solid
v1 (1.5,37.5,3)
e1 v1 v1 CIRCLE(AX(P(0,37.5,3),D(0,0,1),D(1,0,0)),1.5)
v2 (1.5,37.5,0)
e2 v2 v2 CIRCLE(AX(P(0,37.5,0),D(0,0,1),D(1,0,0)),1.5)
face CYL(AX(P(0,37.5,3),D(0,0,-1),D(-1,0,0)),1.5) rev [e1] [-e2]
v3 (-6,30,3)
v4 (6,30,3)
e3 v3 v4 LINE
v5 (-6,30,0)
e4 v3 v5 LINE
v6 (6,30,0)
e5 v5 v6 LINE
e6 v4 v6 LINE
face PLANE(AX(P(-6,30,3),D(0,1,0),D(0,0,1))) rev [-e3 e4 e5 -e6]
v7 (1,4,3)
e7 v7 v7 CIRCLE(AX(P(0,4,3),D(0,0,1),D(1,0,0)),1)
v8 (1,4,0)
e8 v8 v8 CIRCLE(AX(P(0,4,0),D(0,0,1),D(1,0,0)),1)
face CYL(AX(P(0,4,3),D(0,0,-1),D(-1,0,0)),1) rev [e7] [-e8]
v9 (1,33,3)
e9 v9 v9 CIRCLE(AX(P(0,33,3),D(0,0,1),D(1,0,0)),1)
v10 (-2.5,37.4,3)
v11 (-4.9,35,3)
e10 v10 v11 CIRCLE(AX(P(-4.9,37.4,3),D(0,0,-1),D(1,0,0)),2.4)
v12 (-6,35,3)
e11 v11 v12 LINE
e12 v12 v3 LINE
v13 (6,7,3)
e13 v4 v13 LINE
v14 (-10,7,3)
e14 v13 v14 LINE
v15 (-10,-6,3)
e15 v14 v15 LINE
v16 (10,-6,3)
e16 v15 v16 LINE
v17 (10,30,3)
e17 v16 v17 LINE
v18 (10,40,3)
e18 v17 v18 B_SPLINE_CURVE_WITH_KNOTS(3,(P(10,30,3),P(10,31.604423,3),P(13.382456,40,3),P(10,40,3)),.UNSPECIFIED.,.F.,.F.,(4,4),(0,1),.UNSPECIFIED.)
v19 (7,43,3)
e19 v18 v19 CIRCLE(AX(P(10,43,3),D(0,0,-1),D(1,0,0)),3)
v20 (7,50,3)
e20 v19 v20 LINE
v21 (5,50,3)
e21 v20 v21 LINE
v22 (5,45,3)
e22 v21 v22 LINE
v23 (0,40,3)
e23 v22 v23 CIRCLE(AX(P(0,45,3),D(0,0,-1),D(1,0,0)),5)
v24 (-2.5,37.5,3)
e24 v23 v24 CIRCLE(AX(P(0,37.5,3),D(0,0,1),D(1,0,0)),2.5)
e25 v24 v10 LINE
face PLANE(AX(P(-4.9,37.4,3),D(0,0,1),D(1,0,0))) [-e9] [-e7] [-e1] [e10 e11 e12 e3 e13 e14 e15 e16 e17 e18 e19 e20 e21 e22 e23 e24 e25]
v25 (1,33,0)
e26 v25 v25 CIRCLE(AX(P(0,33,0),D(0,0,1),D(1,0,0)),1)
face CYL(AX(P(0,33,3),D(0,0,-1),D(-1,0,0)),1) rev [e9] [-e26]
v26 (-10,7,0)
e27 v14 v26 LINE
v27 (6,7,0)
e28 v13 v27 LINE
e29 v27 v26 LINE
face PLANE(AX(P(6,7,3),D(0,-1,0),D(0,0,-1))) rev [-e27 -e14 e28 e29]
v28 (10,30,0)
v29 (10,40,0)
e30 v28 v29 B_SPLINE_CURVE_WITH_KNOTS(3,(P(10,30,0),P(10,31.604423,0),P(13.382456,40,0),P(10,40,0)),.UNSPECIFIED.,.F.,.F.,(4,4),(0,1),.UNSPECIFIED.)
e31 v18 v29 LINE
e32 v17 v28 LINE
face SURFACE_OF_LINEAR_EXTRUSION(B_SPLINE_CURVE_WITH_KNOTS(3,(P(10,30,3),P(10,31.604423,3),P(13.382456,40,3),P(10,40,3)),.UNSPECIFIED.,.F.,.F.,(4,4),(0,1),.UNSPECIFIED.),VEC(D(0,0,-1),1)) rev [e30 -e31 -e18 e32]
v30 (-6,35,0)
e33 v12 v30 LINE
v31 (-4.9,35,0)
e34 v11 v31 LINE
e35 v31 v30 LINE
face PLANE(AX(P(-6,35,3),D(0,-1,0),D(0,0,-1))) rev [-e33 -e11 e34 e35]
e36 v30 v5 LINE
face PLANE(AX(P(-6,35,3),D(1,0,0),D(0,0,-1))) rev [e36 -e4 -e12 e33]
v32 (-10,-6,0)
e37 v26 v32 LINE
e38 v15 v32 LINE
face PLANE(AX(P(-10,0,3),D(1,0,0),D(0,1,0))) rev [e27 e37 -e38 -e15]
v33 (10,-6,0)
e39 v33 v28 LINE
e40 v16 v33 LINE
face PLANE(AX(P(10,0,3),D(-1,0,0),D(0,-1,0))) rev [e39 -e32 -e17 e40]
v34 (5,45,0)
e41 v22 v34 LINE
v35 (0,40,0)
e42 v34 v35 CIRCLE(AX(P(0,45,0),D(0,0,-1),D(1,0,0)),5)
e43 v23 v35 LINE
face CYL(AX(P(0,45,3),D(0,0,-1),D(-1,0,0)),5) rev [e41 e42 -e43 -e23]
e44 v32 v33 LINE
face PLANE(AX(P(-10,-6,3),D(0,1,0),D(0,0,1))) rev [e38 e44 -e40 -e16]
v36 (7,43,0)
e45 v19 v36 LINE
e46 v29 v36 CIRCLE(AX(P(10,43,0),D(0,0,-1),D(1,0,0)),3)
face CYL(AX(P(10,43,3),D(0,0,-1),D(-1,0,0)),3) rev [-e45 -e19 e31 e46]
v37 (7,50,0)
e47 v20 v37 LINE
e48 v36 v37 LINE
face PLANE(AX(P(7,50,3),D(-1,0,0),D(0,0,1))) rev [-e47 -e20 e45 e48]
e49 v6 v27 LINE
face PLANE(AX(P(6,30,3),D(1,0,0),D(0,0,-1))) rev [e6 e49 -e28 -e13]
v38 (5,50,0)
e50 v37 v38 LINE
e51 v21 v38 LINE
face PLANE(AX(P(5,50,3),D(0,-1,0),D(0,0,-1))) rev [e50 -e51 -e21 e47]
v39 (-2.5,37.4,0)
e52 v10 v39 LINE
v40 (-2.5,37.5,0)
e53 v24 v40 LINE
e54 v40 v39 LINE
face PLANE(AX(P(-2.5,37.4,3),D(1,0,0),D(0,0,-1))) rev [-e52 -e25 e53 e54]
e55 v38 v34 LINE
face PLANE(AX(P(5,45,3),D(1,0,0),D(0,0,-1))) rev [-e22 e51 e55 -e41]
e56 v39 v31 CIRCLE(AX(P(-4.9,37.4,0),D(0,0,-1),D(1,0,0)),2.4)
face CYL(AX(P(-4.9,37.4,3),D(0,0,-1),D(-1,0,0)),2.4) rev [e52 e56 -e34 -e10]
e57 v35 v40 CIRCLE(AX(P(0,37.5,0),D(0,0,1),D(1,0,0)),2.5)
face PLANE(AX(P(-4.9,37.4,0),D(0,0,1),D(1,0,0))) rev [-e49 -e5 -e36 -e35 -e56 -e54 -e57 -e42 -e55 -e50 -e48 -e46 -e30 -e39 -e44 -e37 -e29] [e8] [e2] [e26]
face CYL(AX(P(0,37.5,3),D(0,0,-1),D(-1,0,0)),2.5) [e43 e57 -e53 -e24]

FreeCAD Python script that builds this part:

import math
import FreeCAD as App
import Part
import Sketcher

V = App.Vector

doc = App.newDocument("Part")
body = doc.addObject("PartDesign::Body", "Body")

# Sketch on XY plane
sketch1 = doc.addObject("Sketcher::SketchObject", "Sketch")
body.addObject(sketch1)
sketch1.AttachmentSupport = (doc.XY_Plane, [""])
sketch1.MapMode = "FlatFace"
sketch1.addGeometry([
    Part.BSplineCurve([V(10, 40, 0), V(13.382456, 40, 0), V(10, 31.604423, 0), V(10, 30, 0)], [4, 4], [0, 1], False, 3, [1, 1, 1, 1], False),  # 0
    Part.ArcOfCircle(Part.Circle(V(10, 43, 0), V(0, 0, 1), 3), math.radians(180), math.radians(270)),  # 1
    Part.LineSegment(V(7, 43, 0), V(7, 50, 0)),  # 2
    Part.LineSegment(V(7, 50, 0), V(5, 50, 0)),  # 3
    Part.LineSegment(V(5, 50, 0), V(5, 45, 0)),  # 4
    Part.ArcOfCircle(Part.Circle(V(0, 45, 0), V(0, 0, 1), 5), math.radians(-90), math.radians(0)),  # 5
    Part.ArcOfCircle(Part.Circle(V(0, 37.5, 0), V(0, 0, 1), 2.5), math.radians(90), math.radians(180)),  # 6
    Part.LineSegment(V(-2.5, 37.5, 0), V(-2.5, 37.4, 0)),  # 7
    Part.ArcOfCircle(Part.Circle(V(-4.9, 37.4, 0), V(0, 0, 1), 2.4), math.radians(-90), math.radians(0)),  # 8
    Part.LineSegment(V(-4.9, 35, 0), V(-6, 35, 0)),  # 9
    Part.LineSegment(V(-6, 35, 0), V(-6, 30, 0)),  # 10
    Part.LineSegment(V(-6, 30, 0), V(6, 30, 0)),  # 11
    Part.LineSegment(V(6, 30, 0), V(6, 7, 0)),  # 12
    Part.LineSegment(V(6, 7, 0), V(-10, 7, 0)),  # 13
    Part.LineSegment(V(-10, 7, 0), V(-10, -6, 0)),  # 14
    Part.LineSegment(V(-10, -6, 0), V(10, -6, 0)),  # 15
    Part.LineSegment(V(10, -6, 0), V(10, 30, 0)),  # 16
    Part.Circle(V(0, 4, 0), V(0, 0, 1), 1),  # 17
    Part.Circle(V(0, 33, 0), V(0, 0, 1), 1),  # 18
    Part.Circle(V(0, 37.5, 0), V(0, 0, 1), 1.5),  # 19
], False)
sketch1.addConstraint([
    Sketcher.Constraint("Block", 0),
    Sketcher.Constraint("Coincident", 0, 1, 1, 2),
    Sketcher.Constraint("Tangent", 1, 1, 2, 1),
    Sketcher.Constraint("Coincident", 2, 2, 3, 1),
    Sketcher.Constraint("Coincident", 3, 2, 4, 1),
    Sketcher.Constraint("Tangent", 4, 2, 5, 2),
    Sketcher.Constraint("Tangent", 5, 1, 6, 1),
    Sketcher.Constraint("Tangent", 6, 2, 7, 1),
    Sketcher.Constraint("Tangent", 7, 2, 8, 2),
    Sketcher.Constraint("Tangent", 8, 1, 9, 1),
    Sketcher.Constraint("Coincident", 9, 2, 10, 1),
    Sketcher.Constraint("Coincident", 10, 2, 11, 1),
    Sketcher.Constraint("Coincident", 11, 2, 12, 1),
    Sketcher.Constraint("Coincident", 12, 2, 13, 1),
    Sketcher.Constraint("Coincident", 13, 2, 14, 1),
    Sketcher.Constraint("Coincident", 14, 2, 15, 1),
    Sketcher.Constraint("Coincident", 15, 2, 16, 1),
    Sketcher.Constraint("Coincident", 16, 2, 0, 2),
    Sketcher.Constraint("Vertical", 2),
    Sketcher.Constraint("Horizontal", 3),
    Sketcher.Constraint("Vertical", 4),
    Sketcher.Constraint("Vertical", 7),
    Sketcher.Constraint("Horizontal", 9),
    Sketcher.Constraint("Vertical", 10),
    Sketcher.Constraint("Horizontal", 11),
    Sketcher.Constraint("Vertical", 12),
    Sketcher.Constraint("Horizontal", 13),
    Sketcher.Constraint("Vertical", 14),
    Sketcher.Constraint("Horizontal", 15),
    Sketcher.Constraint("Vertical", 16),
    Sketcher.Constraint("Coincident", 19, 3, 6, 3),
    Sketcher.Constraint("Equal", 17, 18),
    Sketcher.Constraint("PointOnObject", 5, 3, -2),
    Sketcher.Constraint("PointOnObject", 6, 3, -2),
    Sketcher.Constraint("PointOnObject", 17, 3, -2),
    Sketcher.Constraint("PointOnObject", 18, 3, -2),
    Sketcher.Constraint("Horizontal", 11, 2, 16, 2),
    Sketcher.Constraint("Vertical", 1, 3, 15, 2),
    Sketcher.Constraint("Equal", 4, 10),
    Sketcher.Constraint("Diameter", 17, 2.0),
    Sketcher.Constraint("Diameter", 19, 3.0),
    Sketcher.Constraint("Radius", 1, 3.0),
    Sketcher.Constraint("Radius", 5, 5.0),
    Sketcher.Constraint("Radius", 6, 2.5),
    Sketcher.Constraint("Radius", 8, 2.4),
    Sketcher.Constraint("DistanceX", 11, 1, 11, 2, 12.0),
    Sketcher.Constraint("DistanceX", 13, 2, 13, 1, 16.0),
    Sketcher.Constraint("DistanceX", 15, 1, 15, 2, 20.0),
    Sketcher.Constraint("DistanceY", 2, 1, 2, 2, 7.0),
    Sketcher.Constraint("DistanceY", 4, 2, 4, 1, 5.0),
    Sketcher.Constraint("DistanceY", 12, 2, 12, 1, 23.0),
    Sketcher.Constraint("DistanceY", 14, 2, 14, 1, 13.0),
    Sketcher.Constraint("DistanceY", -1, 1, 17, 3, 4.0),
    Sketcher.Constraint("DistanceY", -1, 1, 18, 3, 33.0),
])
pad1 = doc.addObject("PartDesign::Pad", "Pad")
body.addObject(pad1)
pad1.Profile = sketch1
pad1.Length = 3

doc.recompute()
